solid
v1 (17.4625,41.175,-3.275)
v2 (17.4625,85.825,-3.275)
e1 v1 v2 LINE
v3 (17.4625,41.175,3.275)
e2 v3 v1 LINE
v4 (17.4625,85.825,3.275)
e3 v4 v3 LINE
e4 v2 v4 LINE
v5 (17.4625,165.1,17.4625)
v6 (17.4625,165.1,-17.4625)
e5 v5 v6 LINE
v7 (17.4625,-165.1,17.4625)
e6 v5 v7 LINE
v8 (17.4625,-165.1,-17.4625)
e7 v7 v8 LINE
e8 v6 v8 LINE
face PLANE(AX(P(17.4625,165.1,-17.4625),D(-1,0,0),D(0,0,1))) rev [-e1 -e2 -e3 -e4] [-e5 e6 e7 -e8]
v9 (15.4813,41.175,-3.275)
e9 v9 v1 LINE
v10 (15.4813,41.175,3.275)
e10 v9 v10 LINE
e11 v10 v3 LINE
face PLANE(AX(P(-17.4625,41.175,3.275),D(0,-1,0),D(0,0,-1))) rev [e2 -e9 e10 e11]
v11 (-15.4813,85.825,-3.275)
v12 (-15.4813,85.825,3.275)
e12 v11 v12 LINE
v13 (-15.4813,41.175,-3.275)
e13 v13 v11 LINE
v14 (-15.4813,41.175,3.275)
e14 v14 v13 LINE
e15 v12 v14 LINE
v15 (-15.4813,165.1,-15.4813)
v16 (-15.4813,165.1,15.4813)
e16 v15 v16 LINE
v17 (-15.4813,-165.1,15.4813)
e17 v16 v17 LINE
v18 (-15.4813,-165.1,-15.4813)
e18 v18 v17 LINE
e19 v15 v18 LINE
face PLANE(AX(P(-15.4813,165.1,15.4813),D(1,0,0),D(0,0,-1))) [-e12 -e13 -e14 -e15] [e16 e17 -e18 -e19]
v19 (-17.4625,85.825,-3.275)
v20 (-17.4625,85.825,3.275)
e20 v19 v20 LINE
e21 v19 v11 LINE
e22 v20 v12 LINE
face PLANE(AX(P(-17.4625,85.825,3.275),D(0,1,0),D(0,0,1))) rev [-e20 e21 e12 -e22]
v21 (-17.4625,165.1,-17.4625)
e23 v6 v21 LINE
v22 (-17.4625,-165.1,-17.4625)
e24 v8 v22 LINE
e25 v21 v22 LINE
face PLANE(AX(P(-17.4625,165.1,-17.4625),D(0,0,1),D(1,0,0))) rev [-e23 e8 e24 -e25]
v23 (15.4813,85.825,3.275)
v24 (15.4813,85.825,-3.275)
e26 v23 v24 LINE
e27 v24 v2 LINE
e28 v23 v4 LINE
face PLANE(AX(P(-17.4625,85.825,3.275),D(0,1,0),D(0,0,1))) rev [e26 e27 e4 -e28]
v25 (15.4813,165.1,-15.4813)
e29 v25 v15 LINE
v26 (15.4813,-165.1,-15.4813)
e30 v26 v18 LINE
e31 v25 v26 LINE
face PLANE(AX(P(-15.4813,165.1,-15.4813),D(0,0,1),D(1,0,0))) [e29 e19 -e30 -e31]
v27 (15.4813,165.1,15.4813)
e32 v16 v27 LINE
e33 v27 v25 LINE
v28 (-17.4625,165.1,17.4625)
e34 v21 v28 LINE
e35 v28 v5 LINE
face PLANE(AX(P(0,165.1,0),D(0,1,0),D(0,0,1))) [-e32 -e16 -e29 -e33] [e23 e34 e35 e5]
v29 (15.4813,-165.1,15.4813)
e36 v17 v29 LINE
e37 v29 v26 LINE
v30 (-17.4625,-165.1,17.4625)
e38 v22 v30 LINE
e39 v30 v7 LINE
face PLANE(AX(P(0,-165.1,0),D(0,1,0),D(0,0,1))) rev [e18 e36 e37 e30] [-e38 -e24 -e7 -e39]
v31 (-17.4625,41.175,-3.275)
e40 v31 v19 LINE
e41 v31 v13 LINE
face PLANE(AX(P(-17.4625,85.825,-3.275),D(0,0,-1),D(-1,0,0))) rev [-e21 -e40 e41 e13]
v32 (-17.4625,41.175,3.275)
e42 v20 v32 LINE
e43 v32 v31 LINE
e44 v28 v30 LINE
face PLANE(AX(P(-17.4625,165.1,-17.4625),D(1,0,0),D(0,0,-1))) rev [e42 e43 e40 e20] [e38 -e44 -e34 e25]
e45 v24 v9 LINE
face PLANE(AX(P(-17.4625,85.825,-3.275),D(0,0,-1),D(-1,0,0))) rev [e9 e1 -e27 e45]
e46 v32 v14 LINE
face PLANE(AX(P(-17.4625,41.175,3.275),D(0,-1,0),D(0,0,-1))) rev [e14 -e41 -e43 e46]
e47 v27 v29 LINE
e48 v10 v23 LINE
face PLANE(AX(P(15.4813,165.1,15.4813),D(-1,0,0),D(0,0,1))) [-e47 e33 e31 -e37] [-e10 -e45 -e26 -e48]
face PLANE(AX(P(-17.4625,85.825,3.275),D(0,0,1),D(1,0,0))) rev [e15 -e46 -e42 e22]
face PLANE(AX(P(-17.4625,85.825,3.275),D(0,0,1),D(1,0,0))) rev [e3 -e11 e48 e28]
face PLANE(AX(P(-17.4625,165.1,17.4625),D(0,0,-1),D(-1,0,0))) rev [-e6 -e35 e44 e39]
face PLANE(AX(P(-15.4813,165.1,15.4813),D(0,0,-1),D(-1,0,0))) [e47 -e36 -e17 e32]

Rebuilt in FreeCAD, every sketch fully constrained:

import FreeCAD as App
import Part
import Sketcher
Q = App.Units.Quantity


def add_polygon(sketch, points):
    """Adds a closed chain of lines whose ends are joined by coincident constraints."""
    first, n = sketch.GeometryCount, len(points)
    for a, b in zip(points, points[1:] + points[:1]):
        sketch.addGeometry(Part.LineSegment(App.Vector(*a, 0), App.Vector(*b, 0)), False)
    for i in range(n):
        sketch.addConstraint(Sketcher.Constraint("Coincident", first + i, 2, first + (i + 1) % n, 1))

doc = App.newDocument("Part")
body = doc.addObject("PartDesign::Body", "Body")

sketch1 = body.newObject("Sketcher::SketchObject", "Sketch")
sketch1.AttachmentSupport = (doc.getObject("XZ_Plane"), [""])
sketch1.MapMode = "FlatFace"
add_polygon(sketch1, [(-17.4625, -17.4625), (-17.4625, 17.4625), (17.4625, 17.4625), (17.4625, -17.4625)])
add_polygon(sketch1, [(15.4813, 15.4813), (-15.4813, 15.4813), (-15.4813, -15.4813), (15.4813, -15.4813)])
sketch1.addConstraint(Sketcher.Constraint("Vertical", 0))
sketch1.addConstraint(Sketcher.Constraint("Horizontal", 1))
sketch1.addConstraint(Sketcher.Constraint("Vertical", 2))
sketch1.addConstraint(Sketcher.Constraint("Horizontal", 3))
sketch1.addConstraint(Sketcher.Constraint("Horizontal", 4))
sketch1.addConstraint(Sketcher.Constraint("Vertical", 5))
sketch1.addConstraint(Sketcher.Constraint("Horizontal", 6))
sketch1.addConstraint(Sketcher.Constraint("Vertical", 7))
sketch1.addConstraint(Sketcher.Constraint("Symmetric", 0, 2, 2, 2, -1, 1))
sketch1.addConstraint(Sketcher.Constraint("Symmetric", 4, 2, 6, 2, -1, 1))
sketch1.addConstraint(Sketcher.Constraint("Equal", 3, 0))
sketch1.addConstraint(Sketcher.Constraint("Equal", 6, 5))
sketch1.addConstraint(Sketcher.Constraint("DistanceX", 1, 1, 1, 2, Q("1.375 in")))
sketch1.addConstraint(Sketcher.Constraint("DistanceX", 4, 2, 4, 1, Q("1.219 in")))
pad1 = body.newObject("PartDesign::Pad", "Pad")
pad1.Profile = sketch1
pad1.Length = Q("13 in")
pad1.Midplane = True

sketch2 = body.newObject("Sketcher::SketchObject", "Sketch001")
sketch2.AttachmentSupport = (doc.getObject("YZ_Plane"), [""])
sketch2.MapMode = "FlatFace"
sketch2.AttachmentOffset = App.Placement(App.Vector(0, 0, 0.6875 * 25.4), App.Rotation())
add_polygon(sketch2, [(85.825, 3.275), (41.175, 3.275), (41.175, -3.275), (85.825, -3.275)])
sketch2.addConstraint(Sketcher.Constraint("Horizontal", 0))
sketch2.addConstraint(Sketcher.Constraint("Vertical", 1))
sketch2.addConstraint(Sketcher.Constraint("Horizontal", 2))
sketch2.addConstraint(Sketcher.Constraint("Vertical", 3))
sketch2.addConstraint(Sketcher.Constraint("DistanceX", 0, 2, 0, 1, 44.65))
sketch2.addConstraint(Sketcher.Constraint("DistanceY", 1, 2, 1, 1, 6.55))
sketch2.addConstraint(Sketcher.Constraint("DistanceX", -1, 1, 0, 2, 41.175))
sketch2.addConstraint(Sketcher.Constraint("DistanceY", -1, 1, 0, 2, 3.275))
pocket1 = body.newObject("PartDesign::Pocket", "Pocket")
pocket1.Profile = sketch2
pocket1.Type = "ThroughAll"

doc.recompute()
